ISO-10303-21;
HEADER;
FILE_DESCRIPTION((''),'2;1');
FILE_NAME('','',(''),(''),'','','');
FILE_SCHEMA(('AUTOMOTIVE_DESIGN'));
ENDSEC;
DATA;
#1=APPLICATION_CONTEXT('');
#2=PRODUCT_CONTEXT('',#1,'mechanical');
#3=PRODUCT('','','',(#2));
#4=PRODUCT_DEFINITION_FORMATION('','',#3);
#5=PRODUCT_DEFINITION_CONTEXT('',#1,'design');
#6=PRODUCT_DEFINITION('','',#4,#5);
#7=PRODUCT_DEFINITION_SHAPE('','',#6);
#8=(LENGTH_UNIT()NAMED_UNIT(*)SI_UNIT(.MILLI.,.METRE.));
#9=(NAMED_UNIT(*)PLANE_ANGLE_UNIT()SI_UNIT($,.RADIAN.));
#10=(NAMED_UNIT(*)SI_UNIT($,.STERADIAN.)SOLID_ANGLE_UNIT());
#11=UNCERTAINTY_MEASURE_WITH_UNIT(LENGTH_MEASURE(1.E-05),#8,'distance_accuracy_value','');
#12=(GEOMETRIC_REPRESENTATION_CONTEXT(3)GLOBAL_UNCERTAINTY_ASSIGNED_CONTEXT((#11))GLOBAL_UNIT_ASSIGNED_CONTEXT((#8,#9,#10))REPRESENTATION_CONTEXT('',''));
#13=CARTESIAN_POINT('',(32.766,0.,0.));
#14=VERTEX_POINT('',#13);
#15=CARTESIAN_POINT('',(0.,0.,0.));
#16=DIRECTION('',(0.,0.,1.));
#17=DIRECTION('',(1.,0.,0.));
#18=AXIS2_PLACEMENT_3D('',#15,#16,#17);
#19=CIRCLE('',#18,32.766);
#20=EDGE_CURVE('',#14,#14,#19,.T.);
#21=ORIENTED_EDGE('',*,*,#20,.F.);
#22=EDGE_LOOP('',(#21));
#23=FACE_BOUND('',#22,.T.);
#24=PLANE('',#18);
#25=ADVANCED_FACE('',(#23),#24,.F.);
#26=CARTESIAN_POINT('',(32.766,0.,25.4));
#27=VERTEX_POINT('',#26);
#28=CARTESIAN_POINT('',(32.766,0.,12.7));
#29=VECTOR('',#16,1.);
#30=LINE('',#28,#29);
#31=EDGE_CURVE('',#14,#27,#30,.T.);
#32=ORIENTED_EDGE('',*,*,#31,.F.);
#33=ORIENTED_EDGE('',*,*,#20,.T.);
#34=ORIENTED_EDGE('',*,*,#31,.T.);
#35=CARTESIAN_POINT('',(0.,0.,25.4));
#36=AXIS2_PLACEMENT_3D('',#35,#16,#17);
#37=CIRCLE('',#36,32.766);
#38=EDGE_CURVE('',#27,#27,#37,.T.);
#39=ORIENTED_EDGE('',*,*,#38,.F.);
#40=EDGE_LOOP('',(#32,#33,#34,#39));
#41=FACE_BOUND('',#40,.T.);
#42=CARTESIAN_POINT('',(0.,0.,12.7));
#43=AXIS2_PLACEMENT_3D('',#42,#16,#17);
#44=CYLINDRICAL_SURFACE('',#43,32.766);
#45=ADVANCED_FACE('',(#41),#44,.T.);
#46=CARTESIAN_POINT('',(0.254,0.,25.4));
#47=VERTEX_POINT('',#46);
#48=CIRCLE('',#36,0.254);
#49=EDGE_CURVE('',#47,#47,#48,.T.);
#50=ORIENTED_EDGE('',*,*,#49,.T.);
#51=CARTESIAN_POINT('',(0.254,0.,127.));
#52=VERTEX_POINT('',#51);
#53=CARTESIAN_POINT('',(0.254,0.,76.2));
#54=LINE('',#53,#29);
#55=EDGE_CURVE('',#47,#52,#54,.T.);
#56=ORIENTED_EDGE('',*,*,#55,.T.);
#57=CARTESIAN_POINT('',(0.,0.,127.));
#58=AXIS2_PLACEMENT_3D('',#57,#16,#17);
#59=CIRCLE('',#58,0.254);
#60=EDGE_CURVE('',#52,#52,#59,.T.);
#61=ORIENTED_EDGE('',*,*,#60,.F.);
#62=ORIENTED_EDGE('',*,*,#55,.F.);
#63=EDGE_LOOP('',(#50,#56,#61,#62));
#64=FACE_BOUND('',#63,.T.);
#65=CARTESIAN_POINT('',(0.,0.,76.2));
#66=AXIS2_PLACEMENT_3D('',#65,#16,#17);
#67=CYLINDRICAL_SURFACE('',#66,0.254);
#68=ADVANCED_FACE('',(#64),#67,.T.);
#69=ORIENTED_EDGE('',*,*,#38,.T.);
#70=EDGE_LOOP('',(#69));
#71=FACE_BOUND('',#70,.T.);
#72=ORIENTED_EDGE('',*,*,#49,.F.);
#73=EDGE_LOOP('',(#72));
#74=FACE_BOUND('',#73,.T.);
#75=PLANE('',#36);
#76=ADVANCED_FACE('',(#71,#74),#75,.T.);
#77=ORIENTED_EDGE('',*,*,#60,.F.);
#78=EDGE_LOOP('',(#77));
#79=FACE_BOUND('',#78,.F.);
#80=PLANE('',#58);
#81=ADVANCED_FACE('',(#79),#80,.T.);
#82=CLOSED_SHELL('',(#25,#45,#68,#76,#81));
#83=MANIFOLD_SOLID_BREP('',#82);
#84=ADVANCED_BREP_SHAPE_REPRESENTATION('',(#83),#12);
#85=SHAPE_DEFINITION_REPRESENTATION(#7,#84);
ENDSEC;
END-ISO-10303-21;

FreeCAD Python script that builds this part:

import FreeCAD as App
import Part
import Sketcher
from FreeCAD import Vector
Q = App.Units.Quantity

doc = App.newDocument("Part")
body = doc.addObject("PartDesign::Body", "Body")

# Sketch on XZ plane
sketch1 = doc.addObject("Sketcher::SketchObject", "Sketch")
body.addObject(sketch1)
sketch1.AttachmentSupport = (doc.XZ_Plane, [""])
sketch1.MapMode = "FlatFace"
sketch1.addGeometry(Part.LineSegment(Vector(0, 0, 0), Vector(32.77, 0, 0)), False)
sketch1.addGeometry(Part.LineSegment(Vector(32.77, 0, 0), Vector(32.77, 25.4, 0)), False)
sketch1.addGeometry(Part.LineSegment(Vector(32.77, 25.4, 0), Vector(0.25, 25.4, 0)), False)
sketch1.addGeometry(Part.LineSegment(Vector(0.25, 25.4, 0), Vector(0.25, 127, 0)), False)
sketch1.addGeometry(Part.LineSegment(Vector(0.25, 127, 0), Vector(0, 127, 0)), False)
sketch1.addGeometry(Part.LineSegment(Vector(0, 127, 0), Vector(0, 0, 0)), False)
sketch1.addConstraint(Sketcher.Constraint("Coincident", 0, 2, 1, 1))
sketch1.addConstraint(Sketcher.Constraint("Coincident", 1, 2, 2, 1))
sketch1.addConstraint(Sketcher.Constraint("Coincident", 2, 2, 3, 1))
sketch1.addConstraint(Sketcher.Constraint("Coincident", 3, 2, 4, 1))
sketch1.addConstraint(Sketcher.Constraint("Coincident", 4, 2, 5, 1))
sketch1.addConstraint(Sketcher.Constraint("Coincident", 5, 2, 0, 1))
sketch1.addConstraint(Sketcher.Constraint("Horizontal", 0))
sketch1.addConstraint(Sketcher.Constraint("Vertical", 1))
sketch1.addConstraint(Sketcher.Constraint("Horizontal", 2))
sketch1.addConstraint(Sketcher.Constraint("Vertical", 3))
sketch1.addConstraint(Sketcher.Constraint("Horizontal", 4))
sketch1.addConstraint(Sketcher.Constraint("Vertical", 5))
sketch1.addConstraint(Sketcher.Constraint("Coincident", 5, 2, -1, 1))
sketch1.addConstraint(Sketcher.Constraint("DistanceY", 1, 1, 1, 2, Q("1 in")))
sketch1.addConstraint(Sketcher.Constraint("DistanceY", 3, 1, 3, 2, Q("4 in")))
sketch1.addConstraint(Sketcher.Constraint("DistanceX", 0, 1, 0, 2, Q("1.29 in")))
sketch1.addConstraint(Sketcher.Constraint("DistanceX", 2, 2, 2, 1, Q("1.28 in")))
revolution = doc.addObject("PartDesign::Revolution", "Revolution")
body.addObject(revolution)
revolution.Profile = sketch1
revolution.ReferenceAxis = (sketch1, ["V_Axis"])
revolution.Angle = 360

doc.recompute()
